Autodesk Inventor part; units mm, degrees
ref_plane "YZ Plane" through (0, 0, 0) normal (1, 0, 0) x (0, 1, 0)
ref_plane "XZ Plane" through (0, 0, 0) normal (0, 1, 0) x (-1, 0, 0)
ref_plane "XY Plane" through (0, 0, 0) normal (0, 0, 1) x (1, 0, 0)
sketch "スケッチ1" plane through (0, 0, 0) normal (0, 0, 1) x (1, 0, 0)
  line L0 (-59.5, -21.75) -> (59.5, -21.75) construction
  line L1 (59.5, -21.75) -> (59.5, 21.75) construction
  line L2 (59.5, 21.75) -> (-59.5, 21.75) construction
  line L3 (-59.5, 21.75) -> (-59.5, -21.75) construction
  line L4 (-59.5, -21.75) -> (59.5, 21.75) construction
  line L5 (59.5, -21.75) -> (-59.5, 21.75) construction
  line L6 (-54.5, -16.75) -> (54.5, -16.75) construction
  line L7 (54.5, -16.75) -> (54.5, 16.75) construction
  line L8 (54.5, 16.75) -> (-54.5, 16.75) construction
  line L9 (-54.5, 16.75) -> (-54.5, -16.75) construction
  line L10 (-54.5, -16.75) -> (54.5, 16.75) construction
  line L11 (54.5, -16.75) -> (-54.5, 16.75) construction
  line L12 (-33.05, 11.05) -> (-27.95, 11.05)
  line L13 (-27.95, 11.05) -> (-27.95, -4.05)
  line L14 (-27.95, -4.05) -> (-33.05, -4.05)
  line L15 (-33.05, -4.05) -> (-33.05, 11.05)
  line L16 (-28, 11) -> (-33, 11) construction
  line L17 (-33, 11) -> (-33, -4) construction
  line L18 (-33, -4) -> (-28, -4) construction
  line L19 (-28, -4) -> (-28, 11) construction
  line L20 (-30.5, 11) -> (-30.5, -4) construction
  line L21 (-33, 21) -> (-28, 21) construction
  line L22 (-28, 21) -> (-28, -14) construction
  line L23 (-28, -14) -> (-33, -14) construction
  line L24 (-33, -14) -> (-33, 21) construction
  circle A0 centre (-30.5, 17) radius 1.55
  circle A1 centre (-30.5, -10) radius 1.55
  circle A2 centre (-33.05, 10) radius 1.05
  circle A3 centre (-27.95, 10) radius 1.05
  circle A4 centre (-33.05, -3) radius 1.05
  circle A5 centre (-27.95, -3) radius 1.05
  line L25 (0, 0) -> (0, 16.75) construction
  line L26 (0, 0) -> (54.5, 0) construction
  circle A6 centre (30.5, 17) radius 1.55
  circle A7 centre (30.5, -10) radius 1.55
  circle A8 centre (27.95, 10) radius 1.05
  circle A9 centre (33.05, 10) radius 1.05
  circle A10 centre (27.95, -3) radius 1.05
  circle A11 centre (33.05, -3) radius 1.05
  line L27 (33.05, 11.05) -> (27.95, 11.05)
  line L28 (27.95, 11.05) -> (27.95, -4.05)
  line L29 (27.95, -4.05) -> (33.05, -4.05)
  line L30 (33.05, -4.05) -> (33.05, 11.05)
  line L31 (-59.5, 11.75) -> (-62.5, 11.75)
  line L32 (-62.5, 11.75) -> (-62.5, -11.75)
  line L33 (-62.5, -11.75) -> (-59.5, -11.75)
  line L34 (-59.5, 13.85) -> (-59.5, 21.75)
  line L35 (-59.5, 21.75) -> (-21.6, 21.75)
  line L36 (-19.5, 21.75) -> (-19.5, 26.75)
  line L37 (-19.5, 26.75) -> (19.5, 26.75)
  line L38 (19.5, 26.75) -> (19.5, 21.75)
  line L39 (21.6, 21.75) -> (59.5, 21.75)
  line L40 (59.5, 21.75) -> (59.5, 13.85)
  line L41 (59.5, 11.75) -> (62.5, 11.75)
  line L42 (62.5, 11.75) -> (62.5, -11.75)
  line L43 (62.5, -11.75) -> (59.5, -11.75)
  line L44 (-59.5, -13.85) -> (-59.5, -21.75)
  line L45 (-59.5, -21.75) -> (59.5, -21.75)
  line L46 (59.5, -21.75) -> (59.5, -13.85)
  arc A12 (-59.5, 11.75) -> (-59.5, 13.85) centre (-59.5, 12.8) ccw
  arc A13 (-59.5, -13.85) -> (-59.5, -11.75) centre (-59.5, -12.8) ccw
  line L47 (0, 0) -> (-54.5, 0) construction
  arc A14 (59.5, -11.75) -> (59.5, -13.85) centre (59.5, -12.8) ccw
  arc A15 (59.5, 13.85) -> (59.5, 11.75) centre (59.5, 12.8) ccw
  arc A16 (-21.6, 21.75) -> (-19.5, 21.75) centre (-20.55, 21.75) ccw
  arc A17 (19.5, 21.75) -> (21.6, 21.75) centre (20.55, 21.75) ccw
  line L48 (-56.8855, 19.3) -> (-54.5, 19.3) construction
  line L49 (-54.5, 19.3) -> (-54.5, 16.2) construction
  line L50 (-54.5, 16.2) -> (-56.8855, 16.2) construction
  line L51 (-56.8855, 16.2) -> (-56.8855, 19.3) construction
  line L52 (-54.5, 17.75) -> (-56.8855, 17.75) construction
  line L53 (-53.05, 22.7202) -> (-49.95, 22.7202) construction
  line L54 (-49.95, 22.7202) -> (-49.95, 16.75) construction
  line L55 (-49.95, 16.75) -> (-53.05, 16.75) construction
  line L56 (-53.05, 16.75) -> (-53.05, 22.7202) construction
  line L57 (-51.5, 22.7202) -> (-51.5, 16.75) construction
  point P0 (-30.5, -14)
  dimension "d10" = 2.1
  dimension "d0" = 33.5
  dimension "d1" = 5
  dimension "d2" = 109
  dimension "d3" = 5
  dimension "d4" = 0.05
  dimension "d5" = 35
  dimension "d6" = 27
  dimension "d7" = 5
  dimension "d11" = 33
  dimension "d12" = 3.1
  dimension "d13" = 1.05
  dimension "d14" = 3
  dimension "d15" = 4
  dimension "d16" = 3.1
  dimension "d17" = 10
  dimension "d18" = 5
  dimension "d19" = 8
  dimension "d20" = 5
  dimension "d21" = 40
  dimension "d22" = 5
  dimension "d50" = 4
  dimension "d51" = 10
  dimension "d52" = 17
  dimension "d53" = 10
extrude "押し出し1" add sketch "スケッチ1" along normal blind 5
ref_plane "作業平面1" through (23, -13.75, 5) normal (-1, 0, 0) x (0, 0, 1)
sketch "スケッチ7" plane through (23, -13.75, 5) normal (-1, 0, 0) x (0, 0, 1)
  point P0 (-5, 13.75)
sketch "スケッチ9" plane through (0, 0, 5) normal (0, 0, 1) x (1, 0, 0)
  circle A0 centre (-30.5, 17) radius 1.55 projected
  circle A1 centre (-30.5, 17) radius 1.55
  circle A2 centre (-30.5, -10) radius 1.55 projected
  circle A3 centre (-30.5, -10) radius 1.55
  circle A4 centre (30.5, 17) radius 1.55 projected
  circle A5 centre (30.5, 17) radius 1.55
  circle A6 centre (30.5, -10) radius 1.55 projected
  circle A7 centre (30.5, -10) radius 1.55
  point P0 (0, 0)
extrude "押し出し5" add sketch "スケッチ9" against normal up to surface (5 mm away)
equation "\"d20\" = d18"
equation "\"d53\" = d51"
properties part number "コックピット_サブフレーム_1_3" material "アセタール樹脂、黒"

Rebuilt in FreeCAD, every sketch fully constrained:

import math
import FreeCAD as App
import Part
import Sketcher

V = App.Vector
Q = App.Units.Quantity

doc = App.newDocument("Part")
body = doc.addObject("PartDesign::Body", "Body")

sketch1 = body.newObject("Sketcher::SketchObject", "Sketch")
sketch1.AttachmentSupport = (doc.getObject("XY_Plane"), [""])
sketch1.MapMode = "FlatFace"
sketch1.addGeometry(Part.ArcOfCircle(Part.Circle(V(-59.5, 12.8, 0), V(0, 0, 1), 1.1), math.radians(-90), math.radians(90)), False)
sketch1.addGeometry(Part.LineSegment(V(-59.5, 11.8, 0), V(-62.5, 11.8, 0)), False)
sketch1.addGeometry(Part.LineSegment(V(-62.5, 11.8, 0), V(-62.5, -11.8, 0)), False)
sketch1.addGeometry(Part.LineSegment(V(-62.5, -11.8, 0), V(-59.5, -11.8, 0)), False)
sketch1.addGeometry(Part.ArcOfCircle(Part.Circle(V(-59.5, -12.8, 0), V(0, 0, 1), 1), math.radians(-90), math.radians(90)), False)
sketch1.addGeometry(Part.LineSegment(V(-59.5, -13.8, 0), V(-59.5, -21.8, 0)), False)
sketch1.addGeometry(Part.LineSegment(V(-59.5, -21.8, 0), V(59.5, -21.8, 0)), False)
sketch1.addGeometry(Part.LineSegment(V(59.5, -21.8, 0), V(59.5, -13.8, 0)), False)
sketch1.addGeometry(Part.ArcOfCircle(Part.Circle(V(59.5, -12.8, 0), V(0, 0, 1), 1.1), math.radians(90), math.radians(270)), False)
sketch1.addGeometry(Part.LineSegment(V(59.5, -11.8, 0), V(62.5, -11.8, 0)), False)
sketch1.addGeometry(Part.LineSegment(V(62.5, -11.8, 0), V(62.5, 11.8, 0)), False)
sketch1.addGeometry(Part.LineSegment(V(62.5, 11.8, 0), V(59.5, 11.8, 0)), False)
sketch1.addGeometry(Part.ArcOfCircle(Part.Circle(V(59.5, 12.8, 0), V(0, 0, 1), 1), math.radians(90), math.radians(270)), False)
sketch1.addGeometry(Part.LineSegment(V(59.5, 13.8, 0), V(59.5, 21.8, 0)), False)
sketch1.addGeometry(Part.LineSegment(V(59.5, 21.8, 0), V(21.6, 21.8, 0)), False)
sketch1.addGeometry(Part.ArcOfCircle(Part.Circle(V(20.6, 21.8, 0), V(0, 0, 1), 1.1), math.radians(180), math.radians(360)), False)
sketch1.addGeometry(Part.LineSegment(V(19.5, 21.8, 0), V(19.5, 26.8, 0)), False)
sketch1.addGeometry(Part.LineSegment(V(19.5, 26.8, 0), V(-19.5, 26.8, 0)), False)
sketch1.addGeometry(Part.LineSegment(V(-19.5, 26.8, 0), V(-19.5, 21.8, 0)), False)
sketch1.addGeometry(Part.ArcOfCircle(Part.Circle(V(-20.6, 21.8, 0), V(0, 0, 1), 1.1), math.radians(180), math.radians(360)), False)
sketch1.addGeometry(Part.LineSegment(V(-21.6, 21.8, 0), V(-59.5, 21.8, 0)), False)
sketch1.addGeometry(Part.LineSegment(V(-59.5, 21.8, 0), V(-59.5, 13.8, 0)), False)
sketch1.addGeometry(Part.Circle(V(-30.5, -10, 0), V(0, 0, 1), 1.6), False)
sketch1.addGeometry(Part.Circle(V(30.5, -10, 0), V(0, 0, 1), 1.6), False)
sketch1.addGeometry(Part.ArcOfCircle(Part.Circle(V(-33, 10, 0), V(0, 0, 1), 1.1), math.radians(90), math.radians(270)), False)
sketch1.addGeometry(Part.LineSegment(V(-33, 11.1, 0), V(-27.9, 11.1, 0)), False)
sketch1.addGeometry(Part.ArcOfCircle(Part.Circle(V(-27.9, 10, 0), V(0, 0, 1), 1.1), math.radians(-90), math.radians(90)), False)
sketch1.addGeometry(Part.LineSegment(V(-27.9, 8.9, 0), V(-27.9, -1.9, 0)), False)
sketch1.addGeometry(Part.ArcOfCircle(Part.Circle(V(-27.9, -3, 0), V(0, 0, 1), 1.1), math.radians(-90), math.radians(90)), False)
sketch1.addGeometry(Part.LineSegment(V(-27.9, -4, 0), V(-33, -4, 0)), False)
sketch1.addGeometry(Part.ArcOfCircle(Part.Circle(V(-33, -3, 0), V(0, 0, 1), 1.1), math.radians(90), math.radians(270)), False)
sketch1.addGeometry(Part.LineSegment(V(-33, -1.9, 0), V(-33, 8.9, 0)), False)
sketch1.addGeometry(Part.Circle(V(-30.5, 17, 0), V(0, 0, 1), 1.6), False)
sketch1.addGeometry(Part.ArcOfCircle(Part.Circle(V(27.9, 10, 0), V(0, 0, 1), 1.1), math.radians(90), math.radians(270)), False)
sketch1.addGeometry(Part.LineSegment(V(27.9, 11.1, 0), V(33, 11.1, 0)), False)
sketch1.addGeometry(Part.ArcOfCircle(Part.Circle(V(33, 10, 0), V(0, 0, 1), 1.1), math.radians(-90), math.radians(90)), False)
sketch1.addGeometry(Part.LineSegment(V(33, 8.9, 0), V(33, -1.9, 0)), False)
sketch1.addGeometry(Part.ArcOfCircle(Part.Circle(V(33, -3, 0), V(0, 0, 1), 1.1), math.radians(-90), math.radians(90)), False)
sketch1.addGeometry(Part.LineSegment(V(33, -4, 0), V(27.9, -4, 0)), False)
sketch1.addGeometry(Part.ArcOfCircle(Part.Circle(V(27.9, -3, 0), V(0, 0, 1), 1.1), math.radians(90), math.radians(270)), False)
sketch1.addGeometry(Part.LineSegment(V(27.9, -1.9, 0), V(27.9, 8.9, 0)), False)
sketch1.addGeometry(Part.Circle(V(30.5, 17, 0), V(0, 0, 1), 1.6), False)
sketch1.addConstraint(Sketcher.Constraint("Tangent", 0, 1, 1, 1))
sketch1.addConstraint(Sketcher.Constraint("Coincident", 1, 2, 2, 1))
sketch1.addConstraint(Sketcher.Constraint("Coincident", 2, 2, 3, 1))
sketch1.addConstraint(Sketcher.Constraint("Tangent", 3, 2, 4, 2))
sketch1.addConstraint(Sketcher.Constraint("Coincident", 4, 1, 5, 1))
sketch1.addConstraint(Sketcher.Constraint("Coincident", 5, 2, 6, 1))
sketch1.addConstraint(Sketcher.Constraint("Coincident", 6, 2, 7, 1))
sketch1.addConstraint(Sketcher.Constraint("Coincident", 7, 2, 8, 2))
sketch1.addConstraint(Sketcher.Constraint("Tangent", 8, 1, 9, 1))
sketch1.addConstraint(Sketcher.Constraint("Coincident", 9, 2, 10, 1))
sketch1.addConstraint(Sketcher.Constraint("Coincident", 10, 2, 11, 1))
sketch1.addConstraint(Sketcher.Constraint("Tangent", 11, 2, 12, 2))
sketch1.addConstraint(Sketcher.Constraint("Coincident", 12, 1, 13, 1))
sketch1.addConstraint(Sketcher.Constraint("Coincident", 13, 2, 14, 1))
sketch1.addConstraint(Sketcher.Constraint("Coincident", 14, 2, 15, 2))
sketch1.addConstraint(Sketcher.Constraint("Tangent", 15, 1, 16, 1))
sketch1.addConstraint(Sketcher.Constraint("Coincident", 16, 2, 17, 1))
sketch1.addConstraint(Sketcher.Constraint("Coincident", 17, 2, 18, 1))
sketch1.addConstraint(Sketcher.Constraint("Tangent", 18, 2, 19, 2))
sketch1.addConstraint(Sketcher.Constraint("Coincident", 19, 1, 20, 1))
sketch1.addConstraint(Sketcher.Constraint("Coincident", 20, 2, 21, 1))
sketch1.addConstraint(Sketcher.Constraint("Coincident", 21, 2, 0, 2))
sketch1.addConstraint(Sketcher.Constraint("Tangent", 24, 1, 25, 1))
sketch1.addConstraint(Sketcher.Constraint("Tangent", 25, 2, 26, 2))
sketch1.addConstraint(Sketcher.Constraint("Coincident", 26, 1, 27, 1))
sketch1.addConstraint(Sketcher.Constraint("Coincident", 27, 2, 28, 2))
sketch1.addConstraint(Sketcher.Constraint("Tangent", 28, 1, 29, 1))
sketch1.addConstraint(Sketcher.Constraint("Tangent", 29, 2, 30, 2))
sketch1.addConstraint(Sketcher.Constraint("Coincident", 30, 1, 31, 1))
sketch1.addConstraint(Sketcher.Constraint("Coincident", 31, 2, 24, 2))
sketch1.addConstraint(Sketcher.Constraint("Tangent", 33, 1, 34, 1))
sketch1.addConstraint(Sketcher.Constraint("Tangent", 34, 2, 35, 2))
sketch1.addConstraint(Sketcher.Constraint("Coincident", 35, 1, 36, 1))
sketch1.addConstraint(Sketcher.Constraint("Coincident", 36, 2, 37, 2))
sketch1.addConstraint(Sketcher.Constraint("Tangent", 37, 1, 38, 1))
sketch1.addConstraint(Sketcher.Constraint("Tangent", 38, 2, 39, 2))
sketch1.addConstraint(Sketcher.Constraint("Coincident", 39, 1, 40, 1))
sketch1.addConstraint(Sketcher.Constraint("Coincident", 40, 2, 33, 2))
sketch1.addConstraint(Sketcher.Constraint("Horizontal", 1))
sketch1.addConstraint(Sketcher.Constraint("Vertical", 2))
sketch1.addConstraint(Sketcher.Constraint("Horizontal", 3))
sketch1.addConstraint(Sketcher.Constraint("Vertical", 5))
sketch1.addConstraint(Sketcher.Constraint("Horizontal", 6))
sketch1.addConstraint(Sketcher.Constraint("Vertical", 7))
sketch1.addConstraint(Sketcher.Constraint("Horizontal", 9))
sketch1.addConstraint(Sketcher.Constraint("Vertical", 10))
sketch1.addConstraint(Sketcher.Constraint("Horizontal", 11))
sketch1.addConstraint(Sketcher.Constraint("Vertical", 13))
sketch1.addConstraint(Sketcher.Constraint("Horizontal", 14))
sketch1.addConstraint(Sketcher.Constraint("Vertical", 16))
sketch1.addConstraint(Sketcher.Constraint("Horizontal", 17))
sketch1.addConstraint(Sketcher.Constraint("Vertical", 18))
sketch1.addConstraint(Sketcher.Constraint("Horizontal", 20))
sketch1.addConstraint(Sketcher.Constraint("Vertical", 21))
sketch1.addConstraint(Sketcher.Constraint("Horizontal", 25))
sketch1.addConstraint(Sketcher.Constraint("Vertical", 27))
sketch1.addConstraint(Sketcher.Constraint("Horizontal", 29))
sketch1.addConstraint(Sketcher.Constraint("Vertical", 31))
sketch1.addConstraint(Sketcher.Constraint("Horizontal", 34))
sketch1.addConstraint(Sketcher.Constraint("Vertical", 36))
sketch1.addConstraint(Sketcher.Constraint("Horizontal", 38))
sketch1.addConstraint(Sketcher.Constraint("Vertical", 40))
sketch1.addConstraint(Sketcher.Constraint("Equal", 0, 4))
sketch1.addConstraint(Sketcher.Constraint("Equal", 4, 8))
sketch1.addConstraint(Sketcher.Constraint("Equal", 8, 12))
sketch1.addConstraint(Sketcher.Constraint("Equal", 12, 15))
sketch1.addConstraint(Sketcher.Constraint("Equal", 15, 19))
sketch1.addConstraint(Sketcher.Constraint("Equal", 22, 23))
sketch1.addConstraint(Sketcher.Constraint("Equal", 19, 24))
sketch1.addConstraint(Sketcher.Constraint("Equal", 24, 26))
sketch1.addConstraint(Sketcher.Constraint("Equal", 26, 28))
sketch1.addConstraint(Sketcher.Constraint("Equal", 28, 30))
sketch1.addConstraint(Sketcher.Constraint("Equal", 23, 32))
sketch1.addConstraint(Sketcher.Constraint("Equal", 30, 33))
sketch1.addConstraint(Sketcher.Constraint("Equal", 33, 35))
sketch1.addConstraint(Sketcher.Constraint("Equal", 35, 37))
sketch1.addConstraint(Sketcher.Constraint("Equal", 37, 39))
sketch1.addConstraint(Sketcher.Constraint("Equal", 32, 41))
sketch1.addConstraint(Sketcher.Constraint("Symmetric", 0, 3, 8, 3, -1, 1))
sketch1.addConstraint(Sketcher.Constraint("Symmetric", 4, 3, 12, 3, -1, 1))
sketch1.addConstraint(Sketcher.Constraint("Symmetric", 5, 2, 13, 2, -1, 1))
sketch1.addConstraint(Sketcher.Constraint("Symmetric", 6, 2, 20, 2, -1, 1))
sketch1.addConstraint(Sketcher.Constraint("Symmetric", 4, 3, 8, 3, -2))
sketch1.addConstraint(Sketcher.Constraint("Symmetric", 15, 3, 19, 3, -2))
sketch1.addConstraint(Sketcher.Constraint("Symmetric", 22, 3, 23, 3, -2))
sketch1.addConstraint(Sketcher.Constraint("Symmetric", 26, 3, 33, 3, -2))
sketch1.addConstraint(Sketcher.Constraint("Symmetric", 30, 3, 37, 3, -2))
sketch1.addConstraint(Sketcher.Constraint("Symmetric", 32, 3, 41, 3, -2))
sketch1.addConstraint(Sketcher.Constraint("Horizontal", 19, 3, 13, 2))
sketch1.addConstraint(Sketcher.Constraint("Vertical", 26, 3, 28, 3))
sketch1.addConstraint(Sketcher.Constraint("Vertical", 24, 3, 30, 3))
sketch1.addConstraint(Sketcher.Constraint("Vertical", 22, 3, 32, 3))
sketch1.addConstraint(Sketcher.Constraint("Vertical", 35, 3, 37, 3))
sketch1.addConstraint(Sketcher.Constraint("Vertical", 33, 3, 39, 3))
sketch1.addConstraint(Sketcher.Constraint("Vertical", 3, 2, 4, 1))
sketch1.addConstraint(Sketcher.Constraint("Vertical", 12, 3, 6, 2))
sketch1.addConstraint(Sketcher.Constraint("Vertical", 25, 2, 26, 1))
sketch1.addConstraint(Sketcher.Constraint("Vertical", 29, 2, 30, 1))
sketch1.addConstraint(Sketcher.Constraint("Vertical", 34, 2, 35, 1))
sketch1.addConstraint(Sketcher.Constraint("Vertical", 38, 2, 39, 1))
sketch1.addConstraint(Sketcher.Constraint("Equal", 3, 9))
sketch1.addConstraint(Sketcher.Constraint("Diameter", 22, Q("3.1 mm")))
sketch1.addConstraint(Sketcher.Constraint("DistanceX", 1, 2, 1, 1, Q("3 mm")))
sketch1.addConstraint(Sketcher.Constraint("DistanceY", 16, 1, 16, 2, Q("5 mm")))
sketch1.addConstraint(Sketcher.Constraint("Radius", 0, Q("1.05 mm")))
sketch1.addConstraint(Sketcher.Constraint("DistanceY", 22, 3, -1, 1, Q("10 mm")))
sketch1.addConstraint(Sketcher.Constraint("DistanceY", -1, 1, 24, 3, Q("10 mm")))
sketch1.addConstraint(Sketcher.Constraint("DistanceY", 28, 3, -1, 1, Q("3 mm")))
sketch1.addConstraint(Sketcher.Constraint("DistanceY", -1, 1, 32, 3, Q("17 mm")))
sketch1.addConstraint(Sketcher.Constraint("DistanceY", 5, 2, 3, 2, Q("10 mm")))
sketch1.addConstraint(Sketcher.Constraint("DistanceX", 6, 1, 6, 2, Q("119 mm")))
sketch1.addConstraint(Sketcher.Constraint("DistanceX", 17, 2, 17, 1, Q("39 mm")))
sketch1.addConstraint(Sketcher.Constraint("DistanceX", 25, 1, 25, 2, Q("5.1 mm")))
sketch1.addConstraint(Sketcher.Constraint("DistanceY", 2, 2, 2, 1, Q("23.5 mm")))
sketch1.addConstraint(Sketcher.Constraint("DistanceX", 4, 3, 22, 3, Q("29 mm")))
sketch1.addConstraint(Sketcher.Constraint("DistanceX", 24, 3, 19, 3, Q("12.5 mm")))
pad1 = body.newObject("PartDesign::Pad", "Pad")
pad1.Profile = sketch1
pad1.Length = 5

sketch2 = body.newObject("Sketcher::SketchObject", "Sketch001")
sketch2.AttachmentSupport = (doc.getObject("XY_Plane"), [""])
sketch2.MapMode = "FlatFace"
sketch2.AttachmentOffset = App.Placement(V(0, 0, 5), App.Rotation())
sketch2.addGeometry(Part.Circle(V(-30.5, 17, 0), V(0, 0, 1), 1.6), False)
sketch2.addGeometry(Part.Circle(V(-30.5, -10, 0), V(0, 0, 1), 1.6), False)
sketch2.addGeometry(Part.Circle(V(30.5, 17, 0), V(0, 0, 1), 1.6), False)
sketch2.addGeometry(Part.Circle(V(30.5, -10, 0), V(0, 0, 1), 1.6), False)
sketch2.addConstraint(Sketcher.Constraint("Equal", 0, 1))
sketch2.addConstraint(Sketcher.Constraint("Equal", 1, 2))
sketch2.addConstraint(Sketcher.Constraint("Equal", 2, 3))
sketch2.addConstraint(Sketcher.Constraint("Symmetric", 0, 3, 2, 3, -2))
sketch2.addConstraint(Sketcher.Constraint("Symmetric", 1, 3, 3, 3, -2))
sketch2.addConstraint(Sketcher.Constraint("Vertical", 0, 3, 1, 3))
sketch2.addConstraint(Sketcher.Constraint("Diameter", 0, Q("3.1 mm")))
sketch2.addConstraint(Sketcher.Constraint("DistanceY", -1, 1, 0, 3, Q("17 mm")))
sketch2.addConstraint(Sketcher.Constraint("DistanceY", 1, 3, -1, 1, Q("10 mm")))
sketch2.addConstraint(Sketcher.Constraint("DistanceX", 0, 3, 2, 3, Q("61 mm")))
pad2 = body.newObject("PartDesign::Pad", "Pad001")
pad2.Profile = sketch2
pad2.Length = 5
pad2.Reversed = True

doc.recompute()
